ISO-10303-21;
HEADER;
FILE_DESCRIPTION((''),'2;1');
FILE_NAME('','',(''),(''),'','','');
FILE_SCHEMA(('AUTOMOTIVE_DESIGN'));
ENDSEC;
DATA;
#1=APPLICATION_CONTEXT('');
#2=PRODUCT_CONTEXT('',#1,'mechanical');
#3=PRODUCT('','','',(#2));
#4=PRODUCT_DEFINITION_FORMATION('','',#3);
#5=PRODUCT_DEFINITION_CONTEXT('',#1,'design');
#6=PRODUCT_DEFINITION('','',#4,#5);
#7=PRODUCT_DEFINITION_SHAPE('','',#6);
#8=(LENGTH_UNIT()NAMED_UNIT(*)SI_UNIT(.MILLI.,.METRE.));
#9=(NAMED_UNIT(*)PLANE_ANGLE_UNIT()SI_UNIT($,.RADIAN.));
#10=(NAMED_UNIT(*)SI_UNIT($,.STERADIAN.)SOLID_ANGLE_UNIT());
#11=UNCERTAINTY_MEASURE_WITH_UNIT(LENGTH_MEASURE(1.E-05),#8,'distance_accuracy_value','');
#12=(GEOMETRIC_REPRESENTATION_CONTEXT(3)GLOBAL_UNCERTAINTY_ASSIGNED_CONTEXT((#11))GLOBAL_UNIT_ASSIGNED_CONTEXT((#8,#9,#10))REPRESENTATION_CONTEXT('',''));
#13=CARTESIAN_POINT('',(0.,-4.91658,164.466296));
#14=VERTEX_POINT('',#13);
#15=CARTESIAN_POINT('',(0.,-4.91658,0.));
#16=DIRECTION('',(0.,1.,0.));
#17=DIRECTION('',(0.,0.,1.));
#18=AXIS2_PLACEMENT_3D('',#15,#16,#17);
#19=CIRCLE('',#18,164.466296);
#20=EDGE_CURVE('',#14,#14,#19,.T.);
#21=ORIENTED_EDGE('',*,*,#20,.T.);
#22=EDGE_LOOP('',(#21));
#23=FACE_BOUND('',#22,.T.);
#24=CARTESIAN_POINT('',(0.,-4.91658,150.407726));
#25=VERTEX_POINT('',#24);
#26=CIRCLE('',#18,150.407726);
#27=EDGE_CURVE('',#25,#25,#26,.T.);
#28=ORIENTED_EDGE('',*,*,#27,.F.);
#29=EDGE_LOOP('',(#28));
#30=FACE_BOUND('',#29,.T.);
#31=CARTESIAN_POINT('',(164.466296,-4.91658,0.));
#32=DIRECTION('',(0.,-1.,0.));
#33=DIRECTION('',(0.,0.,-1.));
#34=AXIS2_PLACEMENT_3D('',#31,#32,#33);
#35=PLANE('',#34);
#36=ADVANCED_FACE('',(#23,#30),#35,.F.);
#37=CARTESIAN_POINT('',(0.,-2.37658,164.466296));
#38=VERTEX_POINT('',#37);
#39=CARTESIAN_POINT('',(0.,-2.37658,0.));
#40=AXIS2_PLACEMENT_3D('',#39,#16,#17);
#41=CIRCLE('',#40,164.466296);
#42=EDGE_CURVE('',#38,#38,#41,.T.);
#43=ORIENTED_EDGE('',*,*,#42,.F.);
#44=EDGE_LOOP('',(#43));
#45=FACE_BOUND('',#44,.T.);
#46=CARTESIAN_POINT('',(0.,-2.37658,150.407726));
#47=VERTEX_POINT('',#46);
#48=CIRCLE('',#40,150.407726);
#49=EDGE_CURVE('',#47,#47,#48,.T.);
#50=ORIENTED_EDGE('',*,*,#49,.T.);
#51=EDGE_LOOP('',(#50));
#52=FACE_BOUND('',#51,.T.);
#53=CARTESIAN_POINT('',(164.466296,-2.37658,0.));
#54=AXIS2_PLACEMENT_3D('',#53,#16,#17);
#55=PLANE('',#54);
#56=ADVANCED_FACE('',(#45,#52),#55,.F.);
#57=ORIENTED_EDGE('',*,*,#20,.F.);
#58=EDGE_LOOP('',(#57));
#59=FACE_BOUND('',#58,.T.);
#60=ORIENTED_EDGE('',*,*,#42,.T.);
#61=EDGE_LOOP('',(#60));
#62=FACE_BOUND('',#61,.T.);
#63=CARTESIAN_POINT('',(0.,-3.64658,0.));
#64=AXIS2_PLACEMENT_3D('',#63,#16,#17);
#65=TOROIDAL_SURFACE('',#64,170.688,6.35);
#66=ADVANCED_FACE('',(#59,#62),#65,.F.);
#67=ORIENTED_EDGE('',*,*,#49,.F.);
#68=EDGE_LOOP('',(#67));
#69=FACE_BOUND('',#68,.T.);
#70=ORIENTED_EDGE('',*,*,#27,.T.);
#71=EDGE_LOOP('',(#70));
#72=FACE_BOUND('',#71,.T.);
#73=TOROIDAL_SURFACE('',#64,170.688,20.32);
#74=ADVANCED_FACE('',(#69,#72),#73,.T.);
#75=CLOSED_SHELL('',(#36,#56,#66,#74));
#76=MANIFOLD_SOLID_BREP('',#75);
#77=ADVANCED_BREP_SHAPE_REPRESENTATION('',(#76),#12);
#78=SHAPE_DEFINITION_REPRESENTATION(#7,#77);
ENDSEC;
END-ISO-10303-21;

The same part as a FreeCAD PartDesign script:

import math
import FreeCAD as App
import Part
import Sketcher
Q = App.Units.Quantity

doc = App.newDocument("Part")
body = doc.addObject("PartDesign::Body", "Body")

# Sketch on XY plane
sketch1 = doc.addObject("Sketcher::SketchObject", "Sketch")
body.addObject(sketch1)
sketch1.AttachmentSupport = (doc.XY_Plane, [""])
sketch1.MapMode = "FlatFace"
sketch1.addGeometry([
    Part.LineSegment(App.Vector(150.4, -2.4, 0), App.Vector(164.5, -2.4, 0)),
    Part.ArcOfCircle(Part.Circle(App.Vector(170.7, -3.6, 0), App.Vector(0, 0, 1), 6.3), math.radians(-168), math.radians(168)),
    Part.LineSegment(App.Vector(164.5, -4.9, 0), App.Vector(150.4, -4.9, 0)),
    Part.ArcOfCircle(Part.Circle(App.Vector(170.7, -3.6, 0), App.Vector(0, 0, 1), 20.3), math.radians(-176), math.radians(176)),
], False)
sketch1.addConstraint([
    Sketcher.Constraint("Coincident", 0, 2, 1, 2),
    Sketcher.Constraint("Coincident", 1, 1, 2, 1),
    Sketcher.Constraint("Coincident", 2, 2, 3, 1),
    Sketcher.Constraint("Coincident", 3, 2, 0, 1),
    Sketcher.Constraint("Horizontal", 0),
    Sketcher.Constraint("Horizontal", 2),
    Sketcher.Constraint("Coincident", 3, 3, 1, 3),
    Sketcher.Constraint("Vertical", 0, 2, 1, 1),
    Sketcher.Constraint("Radius", 3, Q("0.8 in")),
    Sketcher.Constraint("Radius", 1, Q("0.25 in")),
    Sketcher.Constraint("DistanceY", 1, 1, 0, 2, Q("0.1 in")),
    Sketcher.Constraint("DistanceX", -1, 1, 1, 3, Q("6.72 in")),
    Sketcher.Constraint("DistanceY", 1, 3, -1, 1, Q("3.64658 mm")),
])
revolution = doc.addObject("PartDesign::Revolution", "Revolution")
body.addObject(revolution)
revolution.Profile = sketch1
revolution.ReferenceAxis = (sketch1, ["V_Axis"])
revolution.Angle = 360

doc.recompute()
